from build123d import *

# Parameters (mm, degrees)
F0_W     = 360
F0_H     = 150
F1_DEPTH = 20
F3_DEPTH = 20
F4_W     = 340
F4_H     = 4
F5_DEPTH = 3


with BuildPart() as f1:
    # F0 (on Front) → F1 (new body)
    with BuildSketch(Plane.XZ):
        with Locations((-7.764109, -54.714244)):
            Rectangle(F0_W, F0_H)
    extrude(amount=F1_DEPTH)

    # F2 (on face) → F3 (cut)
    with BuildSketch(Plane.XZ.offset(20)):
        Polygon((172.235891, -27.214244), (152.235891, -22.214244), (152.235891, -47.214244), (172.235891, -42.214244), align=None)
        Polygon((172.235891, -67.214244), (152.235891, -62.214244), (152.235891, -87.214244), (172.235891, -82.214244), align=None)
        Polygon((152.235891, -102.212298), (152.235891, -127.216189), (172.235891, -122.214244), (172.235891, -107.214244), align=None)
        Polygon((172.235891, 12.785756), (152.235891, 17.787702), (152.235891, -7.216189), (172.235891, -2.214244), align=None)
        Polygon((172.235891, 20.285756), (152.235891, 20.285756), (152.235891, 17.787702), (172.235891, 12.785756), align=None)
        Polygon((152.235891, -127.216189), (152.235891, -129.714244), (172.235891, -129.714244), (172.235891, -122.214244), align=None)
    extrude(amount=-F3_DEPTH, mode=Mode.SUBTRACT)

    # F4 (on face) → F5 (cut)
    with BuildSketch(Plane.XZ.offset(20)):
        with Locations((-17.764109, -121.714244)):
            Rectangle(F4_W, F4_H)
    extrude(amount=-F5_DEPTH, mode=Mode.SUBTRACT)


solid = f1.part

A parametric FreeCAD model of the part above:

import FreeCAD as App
import Part
import Sketcher

V = App.Vector
Q = App.Units.Quantity

doc = App.newDocument("Part")
body = doc.addObject("PartDesign::Body", "Body")

# Sketch on XZ plane
sketch1 = body.newObject("Sketcher::SketchObject", "Sketch")
sketch1.AttachmentSupport = (doc.getObject("XZ_Plane"), [""])
sketch1.MapMode = "FlatFace"
sketch1.addGeometry([
    Part.LineSegment(V(-188, 20, 0), V(-188, -130, 0)),
    Part.LineSegment(V(-188, -130, 0), V(172, -130, 0)),
    Part.LineSegment(V(172, -130, 0), V(172, 20, 0)),
    Part.LineSegment(V(172, 20, 0), V(-188, 20, 0)),
], False)
sketch1.addConstraint([
    Sketcher.Constraint("Coincident", 0, 2, 1, 1),
    Sketcher.Constraint("Coincident", 1, 2, 2, 1),
    Sketcher.Constraint("Coincident", 2, 2, 3, 1),
    Sketcher.Constraint("Coincident", 3, 2, 0, 1),
    Sketcher.Constraint("Vertical", 0),
    Sketcher.Constraint("Horizontal", 1),
    Sketcher.Constraint("Vertical", 2),
    Sketcher.Constraint("Horizontal", 3),
    Sketcher.Constraint("DistanceX", 1, 1, 1, 2, Q("360 mm")),
    Sketcher.Constraint("DistanceY", 0, 2, 0, 1, Q("150 mm")),
    Sketcher.Constraint("DistanceX", 0, 2, -1, 1, Q("187.764109 mm")),
    Sketcher.Constraint("DistanceY", 0, 2, -1, 1, Q("129.714244 mm")),
])
pad1 = body.newObject("PartDesign::Pad", "Pad")
pad1.Profile = sketch1
pad1.Length = 20

# Sketch on XZ plane
sketch2 = body.newObject("Sketcher::SketchObject", "Sketch001")
sketch2.AttachmentSupport = (doc.getObject("XZ_Plane"), [""])
sketch2.MapMode = "FlatFace"
sketch2.AttachmentOffset = App.Placement(V(0, 0, 20), App.Rotation())
sketch2.addGeometry([
    Part.LineSegment(V(172, -27, 0), V(152, -22, 0)),  # 0
    Part.LineSegment(V(152, -22, 0), V(152, -47, 0)),  # 1
    Part.LineSegment(V(152, -47, 0), V(172, -42, 0)),  # 2
    Part.LineSegment(V(172, -42, 0), V(172, -27, 0)),  # 3
    Part.LineSegment(V(172, -67, 0), V(152, -62, 0)),  # 4
    Part.LineSegment(V(152, -62, 0), V(152, -87, 0)),  # 5
    Part.LineSegment(V(152, -87, 0), V(172, -82, 0)),  # 6
    Part.LineSegment(V(172, -82, 0), V(172, -67, 0)),  # 7
    Part.LineSegment(V(152, -102, 0), V(152, -130, 0)),  # 8
    Part.LineSegment(V(152, -130, 0), V(172, -130, 0)),  # 9
    Part.LineSegment(V(172, -130, 0), V(172, -107, 0)),  # 10
    Part.LineSegment(V(172, -107, 0), V(152, -102, 0)),  # 11
    Part.LineSegment(V(152, -7, 0), V(172, -2, 0)),  # 12
    Part.LineSegment(V(172, -2, 0), V(172, 20, 0)),  # 13
    Part.LineSegment(V(172, 20, 0), V(152, 20, 0)),  # 14
    Part.LineSegment(V(152, 20, 0), V(152, -7, 0)),  # 15
], False)
sketch2.addConstraint([
    Sketcher.Constraint("Coincident", 0, 2, 1, 1),
    Sketcher.Constraint("Coincident", 1, 2, 2, 1),
    Sketcher.Constraint("Coincident", 2, 2, 3, 1),
    Sketcher.Constraint("Coincident", 3, 2, 0, 1),
    Sketcher.Constraint("Coincident", 4, 2, 5, 1),
    Sketcher.Constraint("Coincident", 5, 2, 6, 1),
    Sketcher.Constraint("Coincident", 6, 2, 7, 1),
    Sketcher.Constraint("Coincident", 7, 2, 4, 1),
    Sketcher.Constraint("Coincident", 8, 2, 9, 1),
    Sketcher.Constraint("Coincident", 9, 2, 10, 1),
    Sketcher.Constraint("Coincident", 10, 2, 11, 1),
    Sketcher.Constraint("Coincident", 11, 2, 8, 1),
    Sketcher.Constraint("Coincident", 12, 2, 13, 1),
    Sketcher.Constraint("Coincident", 13, 2, 14, 1),
    Sketcher.Constraint("Coincident", 14, 2, 15, 1),
    Sketcher.Constraint("Coincident", 15, 2, 12, 1),
    Sketcher.Constraint("Vertical", 1),
    Sketcher.Constraint("Vertical", 3),
    Sketcher.Constraint("Vertical", 5),
    Sketcher.Constraint("Vertical", 7),
    Sketcher.Constraint("Vertical", 8),
    Sketcher.Constraint("Horizontal", 9),
    Sketcher.Constraint("Vertical", 10),
    Sketcher.Constraint("Vertical", 13),
    Sketcher.Constraint("Horizontal", 14),
    Sketcher.Constraint("Vertical", 15),
    Sketcher.Constraint("Parallel", 0, 4),
    Sketcher.Constraint("Parallel", 2, 6),
    Sketcher.Constraint("Vertical", 1, 2, 4, 2),
    Sketcher.Constraint("Vertical", 3, 2, 6, 2),
    Sketcher.Constraint("Vertical", 5, 2, 8, 2),
    Sketcher.Constraint("Vertical", 7, 2, 9, 2),
    Sketcher.Constraint("Vertical", 10, 2, 12, 2),
    Sketcher.Constraint("Vertical", 11, 2, 14, 2),
    Sketcher.Constraint("Equal", 1, 5),
    Sketcher.Constraint("Equal", 10, 13),
    Sketcher.Constraint("Equal", 8, 15),
    Sketcher.Constraint("Equal", 0, 2),
    Sketcher.Constraint("DistanceX", 9, 1, 9, 2, Q("20 mm")),
    Sketcher.Constraint("DistanceY", 1, 2, 1, 1, Q("25 mm")),
    Sketcher.Constraint("DistanceY", 3, 1, 3, 2, Q("15 mm")),
    Sketcher.Constraint("DistanceY", 10, 1, 10, 2, Q("22.5 mm")),
    Sketcher.Constraint("DistanceY", 4, 2, 1, 2, Q("15 mm")),
    Sketcher.Constraint("DistanceY", 10, 2, 6, 2, Q("25 mm")),
    Sketcher.Constraint("DistanceY", 3, 2, 12, 2, Q("25 mm")),
    Sketcher.Constraint("Distance", 11, Q("20.616 mm")),
    Sketcher.Constraint("DistanceY", 11, 2, -1, 1, Q("102.212298 mm")),
    Sketcher.Constraint("DistanceX", -1, 1, 0, 2, Q("152.235891 mm")),
])
pocket1 = body.newObject("PartDesign::Pocket", "Pocket")
pocket1.Profile = sketch2
pocket1.Length = 20

# Sketch on XZ plane
sketch3 = body.newObject("Sketcher::SketchObject", "Sketch002")
sketch3.AttachmentSupport = (doc.getObject("XZ_Plane"), [""])
sketch3.MapMode = "FlatFace"
sketch3.AttachmentOffset = App.Placement(V(0, 0, 20), App.Rotation())
sketch3.addGeometry([
    Part.LineSegment(V(-187.8, -119.7, 0), V(-187.8, -123.7, 0)),
    Part.LineSegment(V(-187.8, -123.7, 0), V(152.2, -123.7, 0)),
    Part.LineSegment(V(152.2, -123.7, 0), V(152.2, -119.7, 0)),
    Part.LineSegment(V(152.2, -119.7, 0), V(-187.8, -119.7, 0)),
], False)
sketch3.addConstraint([
    Sketcher.Constraint("Coincident", 0, 2, 1, 1),
    Sketcher.Constraint("Coincident", 1, 2, 2, 1),
    Sketcher.Constraint("Coincident", 2, 2, 3, 1),
    Sketcher.Constraint("Coincident", 3, 2, 0, 1),
    Sketcher.Constraint("Vertical", 0),
    Sketcher.Constraint("Horizontal", 1),
    Sketcher.Constraint("Vertical", 2),
    Sketcher.Constraint("Horizontal", 3),
    Sketcher.Constraint("DistanceX", 1, 1, 1, 2, Q("340 mm")),
    Sketcher.Constraint("DistanceY", 0, 2, 0, 1, Q("4 mm")),
    Sketcher.Constraint("DistanceX", 0, 2, -1, 1, Q("187.764109 mm")),
    Sketcher.Constraint("DistanceY", 0, 2, -1, 1, Q("123.714244 mm")),
])
pocket2 = body.newObject("PartDesign::Pocket", "Pocket001")
pocket2.Profile = sketch3
pocket2.Length = 3

doc.recompute()
